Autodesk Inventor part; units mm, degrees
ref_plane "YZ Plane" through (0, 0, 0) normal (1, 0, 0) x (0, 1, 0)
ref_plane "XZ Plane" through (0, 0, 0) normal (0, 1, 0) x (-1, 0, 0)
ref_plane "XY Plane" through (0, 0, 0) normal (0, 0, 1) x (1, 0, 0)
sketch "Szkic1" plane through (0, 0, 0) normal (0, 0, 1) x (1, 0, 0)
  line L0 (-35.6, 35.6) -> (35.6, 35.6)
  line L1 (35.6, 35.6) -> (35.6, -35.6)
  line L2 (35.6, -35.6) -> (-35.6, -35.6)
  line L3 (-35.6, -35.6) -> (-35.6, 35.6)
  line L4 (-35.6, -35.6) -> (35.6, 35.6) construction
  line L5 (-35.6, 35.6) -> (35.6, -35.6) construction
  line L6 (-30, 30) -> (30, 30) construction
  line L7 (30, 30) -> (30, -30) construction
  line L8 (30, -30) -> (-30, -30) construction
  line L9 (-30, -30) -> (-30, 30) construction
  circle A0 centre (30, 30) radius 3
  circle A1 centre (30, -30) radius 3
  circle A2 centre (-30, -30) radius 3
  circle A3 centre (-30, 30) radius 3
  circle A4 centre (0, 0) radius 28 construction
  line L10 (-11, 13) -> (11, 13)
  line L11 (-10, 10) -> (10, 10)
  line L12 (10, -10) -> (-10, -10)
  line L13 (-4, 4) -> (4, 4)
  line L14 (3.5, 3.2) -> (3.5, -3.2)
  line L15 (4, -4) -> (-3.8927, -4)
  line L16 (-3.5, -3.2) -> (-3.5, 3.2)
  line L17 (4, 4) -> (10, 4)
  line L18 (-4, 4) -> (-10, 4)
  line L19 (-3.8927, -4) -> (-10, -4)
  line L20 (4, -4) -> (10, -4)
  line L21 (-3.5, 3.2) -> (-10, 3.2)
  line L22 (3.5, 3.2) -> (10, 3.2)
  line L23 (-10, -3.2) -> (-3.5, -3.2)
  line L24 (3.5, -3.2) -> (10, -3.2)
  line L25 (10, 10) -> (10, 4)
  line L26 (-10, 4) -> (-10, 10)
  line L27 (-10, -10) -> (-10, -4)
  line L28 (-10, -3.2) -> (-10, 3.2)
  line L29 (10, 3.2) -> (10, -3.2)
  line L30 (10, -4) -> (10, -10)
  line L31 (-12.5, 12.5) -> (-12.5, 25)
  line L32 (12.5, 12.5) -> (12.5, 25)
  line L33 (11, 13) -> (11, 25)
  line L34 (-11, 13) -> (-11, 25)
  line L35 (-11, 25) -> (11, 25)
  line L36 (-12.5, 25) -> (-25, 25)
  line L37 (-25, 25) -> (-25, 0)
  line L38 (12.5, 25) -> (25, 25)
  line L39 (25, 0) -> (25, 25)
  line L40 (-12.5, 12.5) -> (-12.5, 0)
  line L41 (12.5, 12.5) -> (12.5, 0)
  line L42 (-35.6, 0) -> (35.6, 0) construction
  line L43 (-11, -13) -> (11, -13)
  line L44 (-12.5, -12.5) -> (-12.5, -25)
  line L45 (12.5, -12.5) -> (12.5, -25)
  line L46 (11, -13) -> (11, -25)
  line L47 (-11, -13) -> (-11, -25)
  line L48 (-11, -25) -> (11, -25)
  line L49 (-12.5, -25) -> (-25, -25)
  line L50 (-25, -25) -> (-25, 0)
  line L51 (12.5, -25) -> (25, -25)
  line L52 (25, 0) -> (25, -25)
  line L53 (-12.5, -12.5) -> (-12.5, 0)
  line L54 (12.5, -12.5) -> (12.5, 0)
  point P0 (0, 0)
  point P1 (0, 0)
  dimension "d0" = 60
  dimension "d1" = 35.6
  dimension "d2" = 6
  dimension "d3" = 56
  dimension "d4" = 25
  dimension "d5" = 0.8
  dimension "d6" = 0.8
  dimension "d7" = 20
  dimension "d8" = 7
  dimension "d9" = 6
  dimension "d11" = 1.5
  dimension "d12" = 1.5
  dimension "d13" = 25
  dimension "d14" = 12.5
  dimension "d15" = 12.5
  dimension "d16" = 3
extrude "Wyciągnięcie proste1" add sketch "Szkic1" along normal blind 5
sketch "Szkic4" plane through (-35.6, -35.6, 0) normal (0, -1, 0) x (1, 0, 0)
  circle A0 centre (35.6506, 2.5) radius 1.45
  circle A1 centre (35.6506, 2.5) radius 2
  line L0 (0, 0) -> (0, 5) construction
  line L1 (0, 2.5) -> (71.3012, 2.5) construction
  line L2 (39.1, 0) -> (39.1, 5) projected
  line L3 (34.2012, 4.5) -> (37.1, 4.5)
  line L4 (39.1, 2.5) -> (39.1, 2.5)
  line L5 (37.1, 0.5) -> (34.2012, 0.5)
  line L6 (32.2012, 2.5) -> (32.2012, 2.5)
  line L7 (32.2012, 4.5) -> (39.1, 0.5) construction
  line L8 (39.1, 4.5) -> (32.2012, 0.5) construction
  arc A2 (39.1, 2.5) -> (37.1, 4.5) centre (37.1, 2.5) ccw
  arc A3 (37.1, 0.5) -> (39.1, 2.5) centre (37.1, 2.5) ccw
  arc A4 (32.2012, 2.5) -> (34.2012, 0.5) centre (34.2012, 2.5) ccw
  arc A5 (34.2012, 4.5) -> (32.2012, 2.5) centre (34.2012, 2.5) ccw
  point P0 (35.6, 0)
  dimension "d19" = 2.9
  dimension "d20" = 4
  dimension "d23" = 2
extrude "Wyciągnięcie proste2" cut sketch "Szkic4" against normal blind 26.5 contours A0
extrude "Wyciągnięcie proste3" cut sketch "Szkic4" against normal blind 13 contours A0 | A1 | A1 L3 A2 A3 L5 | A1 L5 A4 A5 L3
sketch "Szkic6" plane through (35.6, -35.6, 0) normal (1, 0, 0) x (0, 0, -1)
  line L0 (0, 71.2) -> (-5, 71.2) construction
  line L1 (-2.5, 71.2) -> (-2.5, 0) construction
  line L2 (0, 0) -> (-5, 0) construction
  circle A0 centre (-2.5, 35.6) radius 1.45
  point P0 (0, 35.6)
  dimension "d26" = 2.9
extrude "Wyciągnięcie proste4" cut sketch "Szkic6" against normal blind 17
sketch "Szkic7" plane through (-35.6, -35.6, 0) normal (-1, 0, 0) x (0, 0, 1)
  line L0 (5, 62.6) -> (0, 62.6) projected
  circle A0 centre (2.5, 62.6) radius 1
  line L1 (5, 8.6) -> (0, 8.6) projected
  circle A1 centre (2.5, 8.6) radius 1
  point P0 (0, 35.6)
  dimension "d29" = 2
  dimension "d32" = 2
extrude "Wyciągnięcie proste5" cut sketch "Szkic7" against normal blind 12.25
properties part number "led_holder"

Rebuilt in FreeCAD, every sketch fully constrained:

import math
import FreeCAD as App
import Part
import Sketcher
Q = App.Units.Quantity

doc = App.newDocument("Part")
body = doc.addObject("PartDesign::Body", "Body")

# Sketch on XY plane
sketch1 = body.newObject("Sketcher::SketchObject", "Sketch")
sketch1.AttachmentSupport = (doc.getObject("XY_Plane"), [""])
sketch1.MapMode = "FlatFace"
sketch1.addGeometry([
    Part.LineSegment(App.Vector(35.6, 35.6, 0), App.Vector(-35.6, 35.6, 0)),  # 0
    Part.LineSegment(App.Vector(-35.6, 35.6, 0), App.Vector(-35.6, -35.6, 0)),  # 1
    Part.LineSegment(App.Vector(-35.6, -35.6, 0), App.Vector(35.6, -35.6, 0)),  # 2
    Part.LineSegment(App.Vector(35.6, -35.6, 0), App.Vector(35.6, 35.6, 0)),  # 3
    Part.Circle(App.Vector(-30, -30, 0), App.Vector(0, 0, 1), 3),  # 4
    Part.LineSegment(App.Vector(-11, -25, 0), App.Vector(-11, -13, 0)),  # 5
    Part.LineSegment(App.Vector(-11, -13, 0), App.Vector(11, -13, 0)),  # 6
    Part.LineSegment(App.Vector(11, -13, 0), App.Vector(11, -25, 0)),  # 7
    Part.LineSegment(App.Vector(11, -25, 0), App.Vector(-11, -25, 0)),  # 8
    Part.Circle(App.Vector(30, -30, 0), App.Vector(0, 0, 1), 3),  # 9
    Part.LineSegment(App.Vector(10, -4, 0), App.Vector(10, -10, 0)),  # 10
    Part.LineSegment(App.Vector(10, -10, 0), App.Vector(-10, -10, 0)),  # 11
    Part.LineSegment(App.Vector(-10, -10, 0), App.Vector(-10, -4, 0)),  # 12
    Part.LineSegment(App.Vector(-10, -4, 0), App.Vector(10, -4, 0)),  # 13
    Part.LineSegment(App.Vector(-12.5, 25, 0), App.Vector(-12.5, -25, 0)),  # 14
    Part.LineSegment(App.Vector(-12.5, -25, 0), App.Vector(-25, -25, 0)),  # 15
    Part.LineSegment(App.Vector(-25, -25, 0), App.Vector(-25, 25, 0)),  # 16
    Part.LineSegment(App.Vector(-25, 25, 0), App.Vector(-12.5, 25, 0)),  # 17
    Part.LineSegment(App.Vector(-3.5, 3.2, 0), App.Vector(-3.5, -3.2, 0)),  # 18
    Part.LineSegment(App.Vector(-3.5, -3.2, 0), App.Vector(-10, -3.2, 0)),  # 19
    Part.LineSegment(App.Vector(-10, -3.2, 0), App.Vector(-10, 3.2, 0)),  # 20
    Part.LineSegment(App.Vector(-10, 3.2, 0), App.Vector(-3.5, 3.2, 0)),  # 21
    Part.Circle(App.Vector(-30, 30, 0), App.Vector(0, 0, 1), 3),  # 22
    Part.LineSegment(App.Vector(3.5, -3.2, 0), App.Vector(3.5, 3.2, 0)),  # 23
    Part.LineSegment(App.Vector(3.5, 3.2, 0), App.Vector(10, 3.2, 0)),  # 24
    Part.LineSegment(App.Vector(10, 3.2, 0), App.Vector(10, -3.2, 0)),  # 25
    Part.LineSegment(App.Vector(10, -3.2, 0), App.Vector(3.5, -3.2, 0)),  # 26
    Part.LineSegment(App.Vector(-10, 4, 0), App.Vector(-10, 10, 0)),  # 27
    Part.LineSegment(App.Vector(-10, 10, 0), App.Vector(10, 10, 0)),  # 28
    Part.LineSegment(App.Vector(10, 10, 0), App.Vector(10, 4, 0)),  # 29
    Part.LineSegment(App.Vector(10, 4, 0), App.Vector(-10, 4, 0)),  # 30
    Part.LineSegment(App.Vector(12.5, -25, 0), App.Vector(12.5, 25, 0)),  # 31
    Part.LineSegment(App.Vector(12.5, 25, 0), App.Vector(25, 25, 0)),  # 32
    Part.LineSegment(App.Vector(25, 25, 0), App.Vector(25, -25, 0)),  # 33
    Part.LineSegment(App.Vector(25, -25, 0), App.Vector(12.5, -25, 0)),  # 34
    Part.LineSegment(App.Vector(11, 13, 0), App.Vector(-11, 13, 0)),  # 35
    Part.LineSegment(App.Vector(-11, 13, 0), App.Vector(-11, 25, 0)),  # 36
    Part.LineSegment(App.Vector(-11, 25, 0), App.Vector(11, 25, 0)),  # 37
    Part.LineSegment(App.Vector(11, 25, 0), App.Vector(11, 13, 0)),  # 38
    Part.Circle(App.Vector(30, 30, 0), App.Vector(0, 0, 1), 3),  # 39
], False)
sketch1.addConstraint([
    Sketcher.Constraint("Coincident", 0, 2, 1, 1),
    Sketcher.Constraint("Coincident", 1, 2, 2, 1),
    Sketcher.Constraint("Coincident", 2, 2, 3, 1),
    Sketcher.Constraint("Coincident", 3, 2, 0, 1),
    Sketcher.Constraint("Coincident", 5, 2, 6, 1),
    Sketcher.Constraint("Coincident", 6, 2, 7, 1),
    Sketcher.Constraint("Coincident", 7, 2, 8, 1),
    Sketcher.Constraint("Coincident", 8, 2, 5, 1),
    Sketcher.Constraint("Coincident", 10, 2, 11, 1),
    Sketcher.Constraint("Coincident", 11, 2, 12, 1),
    Sketcher.Constraint("Coincident", 12, 2, 13, 1),
    Sketcher.Constraint("Coincident", 13, 2, 10, 1),
    Sketcher.Constraint("Coincident", 14, 2, 15, 1),
    Sketcher.Constraint("Coincident", 15, 2, 16, 1),
    Sketcher.Constraint("Coincident", 16, 2, 17, 1),
    Sketcher.Constraint("Coincident", 17, 2, 14, 1),
    Sketcher.Constraint("Coincident", 18, 2, 19, 1),
    Sketcher.Constraint("Coincident", 19, 2, 20, 1),
    Sketcher.Constraint("Coincident", 20, 2, 21, 1),
    Sketcher.Constraint("Coincident", 21, 2, 18, 1),
    Sketcher.Constraint("Coincident", 23, 2, 24, 1),
    Sketcher.Constraint("Coincident", 24, 2, 25, 1),
    Sketcher.Constraint("Coincident", 25, 2, 26, 1),
    Sketcher.Constraint("Coincident", 26, 2, 23, 1),
    Sketcher.Constraint("Coincident", 27, 2, 28, 1),
    Sketcher.Constraint("Coincident", 28, 2, 29, 1),
    Sketcher.Constraint("Coincident", 29, 2, 30, 1),
    Sketcher.Constraint("Coincident", 30, 2, 27, 1),
    Sketcher.Constraint("Coincident", 31, 2, 32, 1),
    Sketcher.Constraint("Coincident", 32, 2, 33, 1),
    Sketcher.Constraint("Coincident", 33, 2, 34, 1),
    Sketcher.Constraint("Coincident", 34, 2, 31, 1),
    Sketcher.Constraint("Coincident", 35, 2, 36, 1),
    Sketcher.Constraint("Coincident", 36, 2, 37, 1),
    Sketcher.Constraint("Coincident", 37, 2, 38, 1),
    Sketcher.Constraint("Coincident", 38, 2, 35, 1),
    Sketcher.Constraint("Horizontal", 0),
    Sketcher.Constraint("Vertical", 1),
    Sketcher.Constraint("Horizontal", 2),
    Sketcher.Constraint("Vertical", 3),
    Sketcher.Constraint("Vertical", 5),
    Sketcher.Constraint("Horizontal", 6),
    Sketcher.Constraint("Vertical", 7),
    Sketcher.Constraint("Horizontal", 8),
    Sketcher.Constraint("Vertical", 10),
    Sketcher.Constraint("Horizontal", 11),
    Sketcher.Constraint("Vertical", 12),
    Sketcher.Constraint("Horizontal", 13),
    Sketcher.Constraint("Vertical", 14),
    Sketcher.Constraint("Horizontal", 15),
    Sketcher.Constraint("Vertical", 16),
    Sketcher.Constraint("Horizontal", 17),
    Sketcher.Constraint("Vertical", 18),
    Sketcher.Constraint("Horizontal", 19),
    Sketcher.Constraint("Vertical", 20),
    Sketcher.Constraint("Horizontal", 21),
    Sketcher.Constraint("Vertical", 23),
    Sketcher.Constraint("Horizontal", 24),
    Sketcher.Constraint("Vertical", 25),
    Sketcher.Constraint("Horizontal", 26),
    Sketcher.Constraint("Vertical", 27),
    Sketcher.Constraint("Horizontal", 28),
    Sketcher.Constraint("Vertical", 29),
    Sketcher.Constraint("Horizontal", 30),
    Sketcher.Constraint("Vertical", 31),
    Sketcher.Constraint("Horizontal", 32),
    Sketcher.Constraint("Vertical", 33),
    Sketcher.Constraint("Horizontal", 34),
    Sketcher.Constraint("Horizontal", 35),
    Sketcher.Constraint("Vertical", 36),
    Sketcher.Constraint("Horizontal", 37),
    Sketcher.Constraint("Vertical", 38),
    Sketcher.Constraint("Equal", 4, 9),
    Sketcher.Constraint("Equal", 9, 22),
    Sketcher.Constraint("Equal", 22, 39),
    Sketcher.Constraint("Symmetric", 9, 3, 22, 3, -1, 1),
    Sketcher.Constraint("Symmetric", 4, 3, 39, 3, -1, 1),
    Sketcher.Constraint("Symmetric", 0, 2, 2, 2, -1, 1),
    Sketcher.Constraint("Symmetric", 18, 2, 23, 2, -1, 1),
    Sketcher.Constraint("Symmetric", 20, 2, 25, 2, -1, 1),
    Sketcher.Constraint("Symmetric", 10, 2, 27, 2, -1, 1),
    Sketcher.Constraint("Symmetric", 12, 2, 29, 2, -1, 1),
    Sketcher.Constraint("Symmetric", 14, 2, 31, 2, -1, 1),
    Sketcher.Constraint("Symmetric", 16, 2, 33, 2, -1, 1),
    Sketcher.Constraint("Symmetric", 6, 2, 35, 2, -1, 1),
    Sketcher.Constraint("Symmetric", 8, 2, 37, 2, -1, 1),
    Sketcher.Constraint("Symmetric", 4, 3, 9, 3, -2),
    Sketcher.Constraint("Horizontal", 8, 2, 14, 2),
    Sketcher.Constraint("Horizontal", 21, 2, 23, 2),
    Sketcher.Constraint("Horizontal", 17, 2, 31, 2),
    Sketcher.Constraint("Vertical", 12, 2, 19, 2),
    Sketcher.Constraint("Vertical", 13, 2, 24, 2),
    Sketcher.Constraint("Vertical", 8, 2, 35, 2),
    Sketcher.Constraint("Equal", 2, 1),
    Sketcher.Constraint("Diameter", 4, Q("6 mm")),
    Sketcher.Constraint("DistanceX", 11, 2, 11, 1, Q("20 mm")),
    Sketcher.Constraint("DistanceY", 10, 2, 10, 1, Q("6 mm")),
    Sketcher.Constraint("DistanceX", 15, 2, 15, 1, Q("12.5 mm")),
    Sketcher.Constraint("DistanceY", 7, 2, -1, 1, Q("25 mm")),
    Sketcher.Constraint("DistanceX", 15, 2, -1, 1, Q("25 mm")),
    Sketcher.Constraint("DistanceX", 4, 3, 9, 3, Q("60 mm")),
    Sketcher.Constraint("DistanceY", 4, 3, 22, 3, Q("60 mm")),
    Sketcher.Constraint("DistanceY", 6, 2, 10, 2, Q("3 mm")),
    Sketcher.Constraint("DistanceY", 9, 3, 10, 2, Q("20 mm")),
    Sketcher.Constraint("DistanceX", 21, 2, 23, 2, Q("7 mm")),
    Sketcher.Constraint("DistanceX", 0, 2, -1, 1, Q("35.6 mm")),
    Sketcher.Constraint("DistanceX", 14, 2, 8, 2, Q("1.5 mm")),
    Sketcher.Constraint("DistanceY", 12, 2, 18, 2, Q("0.8 mm")),
])
pad1 = body.newObject("PartDesign::Pad", "Pad")
pad1.Profile = sketch1
pad1.Length = 5

# Sketch on XZ plane
sketch2 = body.newObject("Sketcher::SketchObject", "Sketch001")
sketch2.AttachmentSupport = (doc.getObject("XZ_Plane"), [""])
sketch2.MapMode = "FlatFace"
sketch2.AttachmentOffset = App.Placement(App.Vector(0, 0, 35.6), App.Rotation())
sketch2.addGeometry(Part.Circle(App.Vector(0.1, 2.5, 0), App.Vector(0, 0, 1), 1.4), False)
sketch2.addConstraint([
    Sketcher.Constraint("Diameter", 0, Q("2.9 mm")),
    Sketcher.Constraint("DistanceY", -1, 1, 0, 3, Q("2.5 mm")),
    Sketcher.Constraint("DistanceX", -1, 1, 0, 3, Q("0.0506 mm")),
])
pocket1 = body.newObject("PartDesign::Pocket", "Pocket")
pocket1.Profile = sketch2
pocket1.Length = 26.5

# Sketch on XZ plane
sketch3 = body.newObject("Sketcher::SketchObject", "Sketch002")
sketch3.AttachmentSupport = (doc.getObject("XZ_Plane"), [""])
sketch3.MapMode = "FlatFace"
sketch3.AttachmentOffset = App.Placement(App.Vector(0, 0, 35.6), App.Rotation())
sketch3.addGeometry([
    Part.ArcOfCircle(Part.Circle(App.Vector(1.5, 2.5, 0), App.Vector(0, 0, 1), 2), math.radians(-90), math.radians(90)),
    Part.LineSegment(App.Vector(1.5, 4.5, 0), App.Vector(-1.4, 4.5, 0)),
    Part.ArcOfCircle(Part.Circle(App.Vector(-1.4, 2.5, 0), App.Vector(0, 0, 1), 2), math.radians(90), math.radians(270)),
    Part.LineSegment(App.Vector(-1.4, 0.5, 0), App.Vector(1.5, 0.5, 0)),
], False)
sketch3.addConstraint([
    Sketcher.Constraint("Tangent", 0, 2, 1, 1),
    Sketcher.Constraint("Tangent", 1, 2, 2, 1),
    Sketcher.Constraint("Tangent", 2, 2, 3, 1),
    Sketcher.Constraint("Tangent", 3, 2, 0, 1),
    Sketcher.Constraint("Horizontal", 1),
    Sketcher.Constraint("Horizontal", 3),
    Sketcher.Constraint("Radius", 0, Q("2 mm")),
    Sketcher.Constraint("DistanceX", -1, 1, 0, 3, Q("1.5 mm")),
    Sketcher.Constraint("DistanceY", -1, 1, 0, 3, Q("2.5 mm")),
    Sketcher.Constraint("DistanceX", 1, 2, 1, 1, Q("2.8988 mm")),
])
pocket2 = body.newObject("PartDesign::Pocket", "Pocket001")
pocket2.Profile = sketch3
pocket2.Length = 13

# Sketch on YZ plane
sketch4 = body.newObject("Sketcher::SketchObject", "Sketch003")
sketch4.AttachmentSupport = (doc.getObject("YZ_Plane"), [""])
sketch4.MapMode = "FlatFace"
sketch4.AttachmentOffset = App.Placement(App.Vector(0, 0, 35.6), App.Rotation())
sketch4.addGeometry(Part.Circle(App.Vector(0, 2.5, 0), App.Vector(0, 0, 1), 1.4), False)
sketch4.addConstraint([
    Sketcher.Constraint("PointOnObject", 0, 3, -2),
    Sketcher.Constraint("Diameter", 0, Q("2.9 mm")),
    Sketcher.Constraint("DistanceY", -1, 1, 0, 3, Q("2.5 mm")),
])
pocket3 = body.newObject("PartDesign::Pocket", "Pocket002")
pocket3.Profile = sketch4
pocket3.Length = 17

# Sketch on YZ plane
sketch5 = body.newObject("Sketcher::SketchObject", "Sketch004")
sketch5.AttachmentSupport = (doc.getObject("YZ_Plane"), [""])
sketch5.MapMode = "FlatFace"
sketch5.AttachmentOffset = App.Placement(App.Vector(0, 0, -35.6), App.Rotation())
sketch5.addGeometry([
    Part.Circle(App.Vector(27, 2.5, 0), App.Vector(0, 0, 1), 1),
    Part.Circle(App.Vector(-27, 2.5, 0), App.Vector(0, 0, 1), 1),
], False)
sketch5.addConstraint([
    Sketcher.Constraint("Equal", 0, 1),
    Sketcher.Constraint("Symmetric", 0, 3, 1, 3, -2),
    Sketcher.Constraint("Diameter", 0, Q("2 mm")),
    Sketcher.Constraint("DistanceX", -1, 1, 0, 3, Q("27 mm")),
    Sketcher.Constraint("DistanceY", -1, 1, 0, 3, Q("2.5 mm")),
])
pocket4 = body.newObject("PartDesign::Pocket", "Pocket003")
pocket4.Profile = sketch5
pocket4.Length = 12.25
pocket4.Reversed = True

doc.recompute()
